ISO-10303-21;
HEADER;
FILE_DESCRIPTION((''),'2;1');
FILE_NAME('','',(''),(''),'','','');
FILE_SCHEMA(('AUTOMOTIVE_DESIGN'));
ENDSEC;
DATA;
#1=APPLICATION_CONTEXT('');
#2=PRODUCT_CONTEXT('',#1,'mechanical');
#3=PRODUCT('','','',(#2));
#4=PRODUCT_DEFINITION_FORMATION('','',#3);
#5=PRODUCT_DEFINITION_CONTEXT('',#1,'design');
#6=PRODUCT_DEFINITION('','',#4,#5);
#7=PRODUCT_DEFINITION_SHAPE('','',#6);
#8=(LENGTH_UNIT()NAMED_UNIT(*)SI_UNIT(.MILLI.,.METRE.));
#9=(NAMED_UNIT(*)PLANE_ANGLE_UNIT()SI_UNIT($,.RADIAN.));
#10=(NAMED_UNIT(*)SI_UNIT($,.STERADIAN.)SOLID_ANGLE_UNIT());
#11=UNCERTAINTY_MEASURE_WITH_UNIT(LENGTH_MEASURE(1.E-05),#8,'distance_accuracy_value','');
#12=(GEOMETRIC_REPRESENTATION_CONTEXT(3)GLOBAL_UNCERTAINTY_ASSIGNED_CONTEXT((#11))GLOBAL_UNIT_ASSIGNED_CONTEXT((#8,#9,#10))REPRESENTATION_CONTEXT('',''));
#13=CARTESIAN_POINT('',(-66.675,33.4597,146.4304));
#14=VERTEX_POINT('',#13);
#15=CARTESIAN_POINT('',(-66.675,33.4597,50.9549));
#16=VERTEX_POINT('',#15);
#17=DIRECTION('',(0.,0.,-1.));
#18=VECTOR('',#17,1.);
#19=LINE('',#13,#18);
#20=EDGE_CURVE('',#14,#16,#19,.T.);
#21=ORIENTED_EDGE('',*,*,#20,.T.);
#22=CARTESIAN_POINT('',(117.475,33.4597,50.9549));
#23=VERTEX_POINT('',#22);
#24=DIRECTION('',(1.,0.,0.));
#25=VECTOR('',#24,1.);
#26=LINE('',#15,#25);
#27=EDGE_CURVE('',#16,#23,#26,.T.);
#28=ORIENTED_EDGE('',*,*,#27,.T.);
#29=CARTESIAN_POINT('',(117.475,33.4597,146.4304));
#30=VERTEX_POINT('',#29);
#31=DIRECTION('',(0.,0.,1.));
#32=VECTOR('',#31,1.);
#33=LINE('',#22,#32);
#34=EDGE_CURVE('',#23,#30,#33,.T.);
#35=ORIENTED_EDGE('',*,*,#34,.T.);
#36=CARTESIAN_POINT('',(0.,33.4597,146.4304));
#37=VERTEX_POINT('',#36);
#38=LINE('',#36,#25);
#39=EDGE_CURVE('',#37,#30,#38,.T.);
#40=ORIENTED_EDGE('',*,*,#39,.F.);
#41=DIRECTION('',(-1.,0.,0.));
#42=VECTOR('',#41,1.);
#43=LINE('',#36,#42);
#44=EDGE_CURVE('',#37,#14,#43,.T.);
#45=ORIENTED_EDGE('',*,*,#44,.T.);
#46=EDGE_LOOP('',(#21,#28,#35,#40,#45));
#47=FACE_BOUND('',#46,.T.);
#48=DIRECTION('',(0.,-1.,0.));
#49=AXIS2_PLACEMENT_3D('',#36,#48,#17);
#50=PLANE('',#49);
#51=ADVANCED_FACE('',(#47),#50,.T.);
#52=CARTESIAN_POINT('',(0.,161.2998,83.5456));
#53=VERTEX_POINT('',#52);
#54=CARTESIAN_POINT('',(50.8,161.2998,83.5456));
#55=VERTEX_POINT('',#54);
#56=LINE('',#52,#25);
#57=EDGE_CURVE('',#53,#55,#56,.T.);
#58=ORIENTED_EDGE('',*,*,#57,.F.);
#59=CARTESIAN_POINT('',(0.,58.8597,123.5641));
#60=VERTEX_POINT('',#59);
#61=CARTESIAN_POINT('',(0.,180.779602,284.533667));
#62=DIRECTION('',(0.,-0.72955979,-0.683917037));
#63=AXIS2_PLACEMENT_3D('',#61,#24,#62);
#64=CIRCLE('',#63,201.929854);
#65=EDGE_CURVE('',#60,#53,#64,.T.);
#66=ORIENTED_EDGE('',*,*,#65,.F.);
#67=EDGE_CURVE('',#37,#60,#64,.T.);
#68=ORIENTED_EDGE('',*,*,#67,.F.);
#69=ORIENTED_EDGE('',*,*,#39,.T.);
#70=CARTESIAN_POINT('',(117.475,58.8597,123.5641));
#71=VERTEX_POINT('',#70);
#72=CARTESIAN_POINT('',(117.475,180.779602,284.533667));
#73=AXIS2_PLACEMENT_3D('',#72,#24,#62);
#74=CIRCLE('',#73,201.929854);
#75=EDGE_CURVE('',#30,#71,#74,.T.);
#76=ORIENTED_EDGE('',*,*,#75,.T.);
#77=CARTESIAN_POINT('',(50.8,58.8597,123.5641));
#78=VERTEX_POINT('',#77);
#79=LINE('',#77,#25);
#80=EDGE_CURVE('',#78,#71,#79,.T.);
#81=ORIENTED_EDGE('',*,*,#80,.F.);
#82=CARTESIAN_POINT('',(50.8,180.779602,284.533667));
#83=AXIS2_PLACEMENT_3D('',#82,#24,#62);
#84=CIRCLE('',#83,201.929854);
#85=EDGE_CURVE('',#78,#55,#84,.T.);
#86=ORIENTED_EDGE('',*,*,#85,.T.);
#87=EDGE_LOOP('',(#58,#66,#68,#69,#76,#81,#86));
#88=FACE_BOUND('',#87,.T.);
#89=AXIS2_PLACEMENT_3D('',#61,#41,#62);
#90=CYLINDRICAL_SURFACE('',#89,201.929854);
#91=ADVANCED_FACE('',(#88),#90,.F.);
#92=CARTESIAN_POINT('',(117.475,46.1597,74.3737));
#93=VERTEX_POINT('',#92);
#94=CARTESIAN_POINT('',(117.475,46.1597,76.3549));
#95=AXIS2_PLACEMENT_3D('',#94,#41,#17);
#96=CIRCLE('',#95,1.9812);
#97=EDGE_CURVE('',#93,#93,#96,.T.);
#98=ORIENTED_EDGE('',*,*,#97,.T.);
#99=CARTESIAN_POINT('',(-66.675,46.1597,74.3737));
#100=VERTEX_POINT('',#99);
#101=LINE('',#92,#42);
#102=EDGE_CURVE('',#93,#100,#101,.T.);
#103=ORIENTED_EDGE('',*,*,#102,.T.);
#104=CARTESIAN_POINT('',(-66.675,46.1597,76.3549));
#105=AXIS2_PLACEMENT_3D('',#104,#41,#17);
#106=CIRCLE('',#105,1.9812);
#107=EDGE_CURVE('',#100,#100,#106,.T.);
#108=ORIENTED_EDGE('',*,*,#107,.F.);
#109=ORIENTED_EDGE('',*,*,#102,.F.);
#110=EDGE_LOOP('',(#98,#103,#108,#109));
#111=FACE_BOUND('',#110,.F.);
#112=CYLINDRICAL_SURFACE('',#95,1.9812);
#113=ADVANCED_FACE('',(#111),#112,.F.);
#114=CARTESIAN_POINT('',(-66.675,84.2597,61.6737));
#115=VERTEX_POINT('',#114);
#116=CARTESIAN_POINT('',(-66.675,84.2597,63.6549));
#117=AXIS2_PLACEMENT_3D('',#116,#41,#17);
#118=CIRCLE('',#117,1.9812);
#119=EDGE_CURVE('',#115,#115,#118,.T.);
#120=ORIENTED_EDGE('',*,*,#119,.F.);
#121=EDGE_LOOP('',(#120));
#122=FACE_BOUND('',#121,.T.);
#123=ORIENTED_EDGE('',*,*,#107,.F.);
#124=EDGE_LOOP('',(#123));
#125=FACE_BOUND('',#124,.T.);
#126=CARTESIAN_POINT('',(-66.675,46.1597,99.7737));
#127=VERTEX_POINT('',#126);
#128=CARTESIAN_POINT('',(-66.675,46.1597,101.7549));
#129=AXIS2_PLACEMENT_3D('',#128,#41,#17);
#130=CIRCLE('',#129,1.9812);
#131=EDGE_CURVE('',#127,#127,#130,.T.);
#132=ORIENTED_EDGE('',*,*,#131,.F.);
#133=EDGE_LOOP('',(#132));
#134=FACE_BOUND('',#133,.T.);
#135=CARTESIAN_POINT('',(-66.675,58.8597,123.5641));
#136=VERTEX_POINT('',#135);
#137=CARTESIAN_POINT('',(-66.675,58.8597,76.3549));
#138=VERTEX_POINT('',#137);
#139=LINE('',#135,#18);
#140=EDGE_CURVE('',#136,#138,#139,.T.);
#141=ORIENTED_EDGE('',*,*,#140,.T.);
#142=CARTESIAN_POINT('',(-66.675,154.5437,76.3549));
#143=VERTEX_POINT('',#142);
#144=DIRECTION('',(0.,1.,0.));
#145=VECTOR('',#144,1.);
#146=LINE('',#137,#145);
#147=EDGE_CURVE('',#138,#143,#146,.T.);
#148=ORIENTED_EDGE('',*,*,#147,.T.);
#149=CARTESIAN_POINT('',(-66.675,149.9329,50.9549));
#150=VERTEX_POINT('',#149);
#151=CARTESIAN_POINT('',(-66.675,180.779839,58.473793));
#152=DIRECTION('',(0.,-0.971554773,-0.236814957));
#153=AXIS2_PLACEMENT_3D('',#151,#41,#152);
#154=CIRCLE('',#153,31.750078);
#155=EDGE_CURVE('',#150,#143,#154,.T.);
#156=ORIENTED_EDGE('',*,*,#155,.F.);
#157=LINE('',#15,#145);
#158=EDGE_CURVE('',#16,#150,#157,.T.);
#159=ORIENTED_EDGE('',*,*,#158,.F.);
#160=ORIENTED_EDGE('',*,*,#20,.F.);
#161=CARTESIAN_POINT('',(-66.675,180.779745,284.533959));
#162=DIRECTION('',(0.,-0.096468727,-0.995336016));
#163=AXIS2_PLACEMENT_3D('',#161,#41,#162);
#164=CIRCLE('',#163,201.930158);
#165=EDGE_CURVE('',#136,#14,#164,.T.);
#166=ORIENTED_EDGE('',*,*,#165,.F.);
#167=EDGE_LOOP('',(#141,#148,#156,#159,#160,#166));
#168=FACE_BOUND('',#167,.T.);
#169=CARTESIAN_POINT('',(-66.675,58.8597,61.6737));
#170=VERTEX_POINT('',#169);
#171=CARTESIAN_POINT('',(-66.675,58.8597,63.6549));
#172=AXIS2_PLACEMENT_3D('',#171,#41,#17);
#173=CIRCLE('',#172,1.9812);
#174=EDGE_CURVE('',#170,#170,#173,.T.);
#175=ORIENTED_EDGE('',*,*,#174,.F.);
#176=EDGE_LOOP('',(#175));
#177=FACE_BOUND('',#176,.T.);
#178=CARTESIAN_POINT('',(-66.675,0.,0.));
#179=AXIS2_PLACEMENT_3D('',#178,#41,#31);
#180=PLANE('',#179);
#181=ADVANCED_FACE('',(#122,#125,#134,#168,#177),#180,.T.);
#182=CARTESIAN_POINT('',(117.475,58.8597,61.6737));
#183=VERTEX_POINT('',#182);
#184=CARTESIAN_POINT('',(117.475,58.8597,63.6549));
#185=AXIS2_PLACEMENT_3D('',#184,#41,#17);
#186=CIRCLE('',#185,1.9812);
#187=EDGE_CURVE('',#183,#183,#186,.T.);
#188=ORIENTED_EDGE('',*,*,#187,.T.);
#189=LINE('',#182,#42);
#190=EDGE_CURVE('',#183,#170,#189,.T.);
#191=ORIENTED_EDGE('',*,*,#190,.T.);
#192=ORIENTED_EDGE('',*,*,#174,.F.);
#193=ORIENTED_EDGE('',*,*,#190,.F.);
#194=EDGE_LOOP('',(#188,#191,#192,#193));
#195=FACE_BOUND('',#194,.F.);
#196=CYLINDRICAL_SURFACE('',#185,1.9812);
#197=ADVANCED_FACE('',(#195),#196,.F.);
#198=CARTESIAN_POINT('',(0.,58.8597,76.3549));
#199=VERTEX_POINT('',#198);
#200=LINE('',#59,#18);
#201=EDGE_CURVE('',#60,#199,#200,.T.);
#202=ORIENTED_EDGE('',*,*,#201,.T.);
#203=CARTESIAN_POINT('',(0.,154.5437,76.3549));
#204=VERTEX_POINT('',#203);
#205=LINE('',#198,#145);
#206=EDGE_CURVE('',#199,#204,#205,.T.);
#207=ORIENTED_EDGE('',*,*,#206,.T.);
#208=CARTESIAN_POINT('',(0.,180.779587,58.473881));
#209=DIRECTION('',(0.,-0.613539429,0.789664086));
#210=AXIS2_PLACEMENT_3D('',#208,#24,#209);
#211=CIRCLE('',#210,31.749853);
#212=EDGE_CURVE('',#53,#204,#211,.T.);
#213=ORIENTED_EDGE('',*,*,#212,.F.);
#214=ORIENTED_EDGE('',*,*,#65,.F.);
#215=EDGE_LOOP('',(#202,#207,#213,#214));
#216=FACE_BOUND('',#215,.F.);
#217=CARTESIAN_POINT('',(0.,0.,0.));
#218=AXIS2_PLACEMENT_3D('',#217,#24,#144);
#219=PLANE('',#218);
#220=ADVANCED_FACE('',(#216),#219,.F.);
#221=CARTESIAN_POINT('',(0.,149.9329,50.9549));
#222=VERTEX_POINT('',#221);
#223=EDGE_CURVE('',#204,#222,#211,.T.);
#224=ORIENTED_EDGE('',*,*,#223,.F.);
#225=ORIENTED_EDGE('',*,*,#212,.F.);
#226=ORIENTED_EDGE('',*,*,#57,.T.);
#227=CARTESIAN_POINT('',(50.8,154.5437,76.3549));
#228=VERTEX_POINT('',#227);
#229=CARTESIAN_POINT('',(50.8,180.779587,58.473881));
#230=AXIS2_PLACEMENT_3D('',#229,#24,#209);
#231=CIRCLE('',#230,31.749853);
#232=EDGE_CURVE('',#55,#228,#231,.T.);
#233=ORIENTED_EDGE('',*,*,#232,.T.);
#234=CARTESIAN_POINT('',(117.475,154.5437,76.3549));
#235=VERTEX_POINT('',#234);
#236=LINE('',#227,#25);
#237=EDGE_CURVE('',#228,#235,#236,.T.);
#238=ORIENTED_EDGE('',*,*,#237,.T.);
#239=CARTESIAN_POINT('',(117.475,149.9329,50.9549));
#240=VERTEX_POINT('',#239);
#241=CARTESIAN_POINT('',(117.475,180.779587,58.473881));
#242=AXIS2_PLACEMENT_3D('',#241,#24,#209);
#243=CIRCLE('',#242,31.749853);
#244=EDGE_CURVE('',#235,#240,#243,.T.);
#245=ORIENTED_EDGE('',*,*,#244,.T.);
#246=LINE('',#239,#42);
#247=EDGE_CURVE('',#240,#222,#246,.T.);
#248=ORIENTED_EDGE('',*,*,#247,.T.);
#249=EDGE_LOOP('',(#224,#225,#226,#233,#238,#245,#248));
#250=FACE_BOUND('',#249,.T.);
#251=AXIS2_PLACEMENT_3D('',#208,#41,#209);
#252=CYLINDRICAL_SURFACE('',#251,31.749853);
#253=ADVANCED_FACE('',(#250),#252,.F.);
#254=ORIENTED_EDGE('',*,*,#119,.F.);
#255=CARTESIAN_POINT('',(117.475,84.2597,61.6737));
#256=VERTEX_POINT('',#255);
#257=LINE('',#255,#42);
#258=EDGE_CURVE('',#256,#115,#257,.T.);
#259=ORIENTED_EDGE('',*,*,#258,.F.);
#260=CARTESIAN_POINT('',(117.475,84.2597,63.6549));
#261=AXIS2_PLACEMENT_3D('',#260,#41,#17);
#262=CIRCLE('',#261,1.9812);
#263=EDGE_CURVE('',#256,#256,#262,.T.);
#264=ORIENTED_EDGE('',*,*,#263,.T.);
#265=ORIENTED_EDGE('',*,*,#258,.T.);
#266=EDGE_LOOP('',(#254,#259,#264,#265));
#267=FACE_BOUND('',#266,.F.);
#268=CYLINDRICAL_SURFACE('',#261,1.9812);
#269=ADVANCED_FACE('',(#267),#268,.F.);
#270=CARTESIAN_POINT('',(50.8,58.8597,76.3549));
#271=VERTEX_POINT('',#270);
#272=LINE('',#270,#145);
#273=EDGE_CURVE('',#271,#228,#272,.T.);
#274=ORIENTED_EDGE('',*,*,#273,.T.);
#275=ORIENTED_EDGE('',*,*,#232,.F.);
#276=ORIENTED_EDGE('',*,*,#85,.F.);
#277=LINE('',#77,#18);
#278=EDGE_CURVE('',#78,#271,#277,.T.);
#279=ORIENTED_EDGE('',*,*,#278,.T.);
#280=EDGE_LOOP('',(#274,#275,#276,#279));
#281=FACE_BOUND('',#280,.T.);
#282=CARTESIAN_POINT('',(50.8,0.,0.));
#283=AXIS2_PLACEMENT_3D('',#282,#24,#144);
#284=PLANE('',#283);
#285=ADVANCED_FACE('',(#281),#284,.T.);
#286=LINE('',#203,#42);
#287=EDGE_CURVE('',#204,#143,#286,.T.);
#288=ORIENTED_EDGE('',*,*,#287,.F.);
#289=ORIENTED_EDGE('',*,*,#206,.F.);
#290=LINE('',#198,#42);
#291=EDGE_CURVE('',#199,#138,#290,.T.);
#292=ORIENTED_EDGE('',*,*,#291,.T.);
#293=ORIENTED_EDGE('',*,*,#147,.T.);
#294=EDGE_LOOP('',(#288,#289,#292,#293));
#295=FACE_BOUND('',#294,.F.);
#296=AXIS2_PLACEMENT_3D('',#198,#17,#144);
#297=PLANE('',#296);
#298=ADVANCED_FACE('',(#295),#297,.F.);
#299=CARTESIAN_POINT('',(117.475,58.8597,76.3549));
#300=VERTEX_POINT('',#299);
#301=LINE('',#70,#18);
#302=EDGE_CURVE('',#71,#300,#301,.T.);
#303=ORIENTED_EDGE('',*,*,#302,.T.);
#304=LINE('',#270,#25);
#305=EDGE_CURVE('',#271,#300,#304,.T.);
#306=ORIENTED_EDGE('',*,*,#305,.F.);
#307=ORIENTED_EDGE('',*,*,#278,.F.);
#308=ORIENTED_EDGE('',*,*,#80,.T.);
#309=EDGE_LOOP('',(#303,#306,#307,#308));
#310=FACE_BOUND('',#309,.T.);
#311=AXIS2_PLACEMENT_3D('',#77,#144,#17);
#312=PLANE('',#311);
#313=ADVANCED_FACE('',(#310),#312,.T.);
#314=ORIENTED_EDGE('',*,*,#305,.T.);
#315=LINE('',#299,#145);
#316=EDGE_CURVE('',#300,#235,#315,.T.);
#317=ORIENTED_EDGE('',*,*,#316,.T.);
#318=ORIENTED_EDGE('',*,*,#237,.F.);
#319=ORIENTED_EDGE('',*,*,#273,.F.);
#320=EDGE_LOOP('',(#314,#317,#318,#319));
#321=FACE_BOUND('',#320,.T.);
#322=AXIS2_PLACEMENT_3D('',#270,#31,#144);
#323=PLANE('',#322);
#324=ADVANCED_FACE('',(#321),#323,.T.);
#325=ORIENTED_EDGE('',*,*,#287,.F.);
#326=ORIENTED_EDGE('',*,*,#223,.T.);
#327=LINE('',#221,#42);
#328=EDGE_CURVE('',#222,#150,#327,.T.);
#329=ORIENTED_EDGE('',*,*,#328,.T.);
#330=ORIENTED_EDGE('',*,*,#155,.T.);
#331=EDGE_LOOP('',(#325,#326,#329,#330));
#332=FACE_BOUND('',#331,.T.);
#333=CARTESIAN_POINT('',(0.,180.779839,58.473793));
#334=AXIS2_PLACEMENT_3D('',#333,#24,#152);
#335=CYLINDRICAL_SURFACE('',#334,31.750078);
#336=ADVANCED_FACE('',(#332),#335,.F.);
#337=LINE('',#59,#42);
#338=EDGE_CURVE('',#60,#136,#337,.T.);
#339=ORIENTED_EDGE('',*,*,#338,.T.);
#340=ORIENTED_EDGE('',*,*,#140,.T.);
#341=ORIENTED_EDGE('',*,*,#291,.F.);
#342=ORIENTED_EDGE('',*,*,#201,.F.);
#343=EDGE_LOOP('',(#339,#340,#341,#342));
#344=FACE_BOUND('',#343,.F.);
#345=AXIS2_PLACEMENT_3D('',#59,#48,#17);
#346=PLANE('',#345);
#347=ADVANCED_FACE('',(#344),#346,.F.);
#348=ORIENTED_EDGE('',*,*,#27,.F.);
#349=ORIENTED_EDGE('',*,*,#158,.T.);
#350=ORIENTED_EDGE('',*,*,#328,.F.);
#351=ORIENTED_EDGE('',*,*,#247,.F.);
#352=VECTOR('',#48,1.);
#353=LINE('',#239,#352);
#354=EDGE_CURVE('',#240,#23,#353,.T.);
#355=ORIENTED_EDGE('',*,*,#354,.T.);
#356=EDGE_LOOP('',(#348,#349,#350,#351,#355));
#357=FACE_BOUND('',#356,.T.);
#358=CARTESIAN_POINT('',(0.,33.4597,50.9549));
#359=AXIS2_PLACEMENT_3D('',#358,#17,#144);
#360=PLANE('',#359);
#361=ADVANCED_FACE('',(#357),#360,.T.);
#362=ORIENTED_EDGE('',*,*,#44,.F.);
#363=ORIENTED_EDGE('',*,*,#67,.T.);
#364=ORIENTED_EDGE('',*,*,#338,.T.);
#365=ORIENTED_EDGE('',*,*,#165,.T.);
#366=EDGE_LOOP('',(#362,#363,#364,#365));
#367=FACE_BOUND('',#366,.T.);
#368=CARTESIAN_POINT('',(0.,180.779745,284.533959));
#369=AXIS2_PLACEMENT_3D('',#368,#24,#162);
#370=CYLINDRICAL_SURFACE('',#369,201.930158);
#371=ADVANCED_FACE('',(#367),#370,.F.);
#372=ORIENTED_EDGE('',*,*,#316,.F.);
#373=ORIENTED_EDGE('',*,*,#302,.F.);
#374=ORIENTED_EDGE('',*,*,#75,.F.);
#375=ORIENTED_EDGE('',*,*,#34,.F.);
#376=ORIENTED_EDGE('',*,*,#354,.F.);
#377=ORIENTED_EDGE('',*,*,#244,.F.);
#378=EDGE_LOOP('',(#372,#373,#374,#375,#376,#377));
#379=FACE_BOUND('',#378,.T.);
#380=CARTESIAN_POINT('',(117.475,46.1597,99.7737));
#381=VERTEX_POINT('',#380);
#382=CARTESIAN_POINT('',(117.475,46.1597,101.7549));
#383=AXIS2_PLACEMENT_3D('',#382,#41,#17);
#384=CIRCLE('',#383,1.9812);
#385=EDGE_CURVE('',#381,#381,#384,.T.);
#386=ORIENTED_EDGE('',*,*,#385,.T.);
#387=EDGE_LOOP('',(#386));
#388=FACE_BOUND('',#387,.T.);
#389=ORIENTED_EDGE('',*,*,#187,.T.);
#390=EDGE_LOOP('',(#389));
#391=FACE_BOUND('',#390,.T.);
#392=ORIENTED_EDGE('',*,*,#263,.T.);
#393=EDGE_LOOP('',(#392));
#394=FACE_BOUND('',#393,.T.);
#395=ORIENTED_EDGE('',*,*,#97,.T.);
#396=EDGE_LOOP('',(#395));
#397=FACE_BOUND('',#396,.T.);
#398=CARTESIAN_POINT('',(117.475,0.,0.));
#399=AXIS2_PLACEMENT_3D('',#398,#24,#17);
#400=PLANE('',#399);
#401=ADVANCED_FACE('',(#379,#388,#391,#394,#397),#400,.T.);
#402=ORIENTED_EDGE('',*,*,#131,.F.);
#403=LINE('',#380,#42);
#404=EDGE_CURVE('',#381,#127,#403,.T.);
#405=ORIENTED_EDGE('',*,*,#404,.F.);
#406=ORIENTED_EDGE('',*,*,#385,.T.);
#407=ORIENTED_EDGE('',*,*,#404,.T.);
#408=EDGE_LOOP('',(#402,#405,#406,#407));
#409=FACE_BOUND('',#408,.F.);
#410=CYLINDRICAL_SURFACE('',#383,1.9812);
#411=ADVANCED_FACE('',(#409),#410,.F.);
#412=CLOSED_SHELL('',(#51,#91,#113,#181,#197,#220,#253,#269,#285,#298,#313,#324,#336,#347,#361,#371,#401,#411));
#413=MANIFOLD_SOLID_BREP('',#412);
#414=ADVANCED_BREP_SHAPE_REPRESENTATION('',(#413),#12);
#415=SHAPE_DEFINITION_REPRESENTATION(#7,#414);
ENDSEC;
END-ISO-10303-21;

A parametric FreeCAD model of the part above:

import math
import FreeCAD as App
import Part
import Sketcher

V = App.Vector
Q = App.Units.Quantity

doc = App.newDocument("Part")
body = doc.addObject("PartDesign::Body", "Body")

sketch1 = body.newObject("Sketcher::SketchObject", "Sketch")
sketch1.AttachmentSupport = (doc.getObject("YZ_Plane"), [""])
sketch1.MapMode = "FlatFace"
sketch1.addGeometry([
    Part.ArcOfCircle(Part.Circle(V(181, 285, 0), V(0, 0, 1), 202), math.radians(-137), math.radians(-96)),
    Part.LineSegment(V(33, 146, 0), V(33, 51, 0)),
    Part.LineSegment(V(33, 51, 0), V(150, 51, 0)),
    Part.ArcOfCircle(Part.Circle(V(181, 58, 0), V(0, 0, 1), 32), math.radians(128), math.radians(194)),
], False)
sketch1.addConstraint([
    Sketcher.Constraint("Coincident", 0, 1, 1, 1),
    Sketcher.Constraint("Coincident", 1, 2, 2, 1),
    Sketcher.Constraint("Coincident", 2, 2, 3, 2),
    Sketcher.Constraint("Coincident", 3, 1, 0, 2),
    Sketcher.Constraint("Vertical", 1),
    Sketcher.Constraint("Horizontal", 2),
    Sketcher.Constraint("Vertical", 0, 3, 3, 3),
    Sketcher.Constraint("DistanceY", 3, 3, 0, 3, Q("8.9 in")),
    Sketcher.Constraint("Radius", 0, Q("7.95 in")),
    Sketcher.Constraint("Radius", 3, Q("1.25 in")),
    Sketcher.Constraint("DistanceX", 0, 1, 3, 3, Q("5.8 in")),
    Sketcher.Constraint("DistanceX", 2, 1, 2, 2, Q("116.4732 mm")),
    Sketcher.Constraint("DistanceX", -1, 1, 0, 3, Q("7.1173 in")),
    Sketcher.Constraint("DistanceY", -1, 1, 1, 2, Q("2.0061 in")),
])
pad1 = body.newObject("PartDesign::Pad", "Pad")
pad1.Profile = sketch1
pad1.Length = Q("2 in")

sketch2 = body.newObject("Sketcher::SketchObject", "Sketch001")
sketch2.AttachmentSupport = (doc.getObject("YZ_Plane"), [""])
sketch2.MapMode = "FlatFace"
sketch2.AttachmentOffset = App.Placement(V(0, 0, 2 * 25.4), App.Rotation())
sketch2.addGeometry([
    Part.ArcOfCircle(Part.Circle(V(181, 285, 0), V(0, 0, 1), 202), math.radians(-136.85), math.radians(-127.14)),
    Part.LineSegment(V(33, 146, 0), V(33, 51, 0)),
    Part.LineSegment(V(33, 51, 0), V(150, 51, 0)),
    Part.ArcOfCircle(Part.Circle(V(181, 58, 0), V(0, 0, 1), 32), math.radians(146), math.radians(194)),
    Part.LineSegment(V(155, 76, 0), V(59, 76, 0)),
    Part.LineSegment(V(59, 76, 0), V(59, 124, 0)),
], False)
sketch2.addConstraint([
    Sketcher.Constraint("Coincident", 0, 1, 1, 1),
    Sketcher.Constraint("Coincident", 1, 2, 2, 1),
    Sketcher.Constraint("Coincident", 2, 2, 3, 2),
    Sketcher.Constraint("Coincident", 3, 1, 4, 1),
    Sketcher.Constraint("Coincident", 4, 2, 5, 1),
    Sketcher.Constraint("Coincident", 5, 2, 0, 2),
    Sketcher.Constraint("Vertical", 1),
    Sketcher.Constraint("Horizontal", 2),
    Sketcher.Constraint("Horizontal", 4),
    Sketcher.Constraint("Vertical", 5),
    Sketcher.Constraint("Vertical", 0, 3, 3, 3),
    Sketcher.Constraint("DistanceY", 2, 2, 3, 1, Q("1 in")),
    Sketcher.Constraint("DistanceX", 1, 2, 4, 2, Q("1 in")),
    Sketcher.Constraint("Radius", 0, Q("7.95 in")),
    Sketcher.Constraint("Radius", 3, Q("1.25 in")),
    Sketcher.Constraint("DistanceY", 3, 3, 0, 3, Q("8.9 in")),
    Sketcher.Constraint("DistanceX", 0, 1, 3, 3, Q("5.8 in")),
    Sketcher.Constraint("DistanceX", 2, 1, 2, 2, Q("116.4732 mm")),
    Sketcher.Constraint("DistanceX", -1, 1, 0, 3, Q("7.1173 in")),
    Sketcher.Constraint("DistanceY", -1, 1, 1, 2, Q("2.0061 in")),
])
pad2 = body.newObject("PartDesign::Pad", "Pad001")
pad2.Profile = sketch2
pad2.Length = Q("2.625 in")

sketch3 = body.newObject("Sketcher::SketchObject", "Sketch002")
sketch3.AttachmentSupport = (doc.getObject("YZ_Plane"), [""])
sketch3.MapMode = "FlatFace"
sketch3.addGeometry([
    Part.LineSegment(V(59, 124, 0), V(59, 76, 0)),
    Part.LineSegment(V(59, 76, 0), V(155, 76, 0)),
    Part.ArcOfCircle(Part.Circle(V(181, 58, 0), V(0, 0, 1), 32), math.radians(146), math.radians(194)),
    Part.LineSegment(V(150, 51, 0), V(33, 51, 0)),
    Part.LineSegment(V(33, 51, 0), V(33, 146, 0)),
    Part.ArcOfCircle(Part.Circle(V(181, 285, 0), V(0, 0, 1), 202), math.radians(-136.85), math.radians(-127.14)),
], False)
sketch3.addConstraint([
    Sketcher.Constraint("Coincident", 0, 2, 1, 1),
    Sketcher.Constraint("Coincident", 1, 2, 2, 1),
    Sketcher.Constraint("Coincident", 2, 2, 3, 1),
    Sketcher.Constraint("Coincident", 3, 2, 4, 1),
    Sketcher.Constraint("Coincident", 4, 2, 5, 1),
    Sketcher.Constraint("Coincident", 5, 2, 0, 1),
    Sketcher.Constraint("Vertical", 0),
    Sketcher.Constraint("Horizontal", 1),
    Sketcher.Constraint("Horizontal", 3),
    Sketcher.Constraint("Vertical", 4),
    Sketcher.Constraint("Vertical", 2, 3, 5, 3),
    Sketcher.Constraint("Radius", 2, Q("1.25 in")),
    Sketcher.Constraint("Radius", 5, Q("7.95 in")),
    Sketcher.Constraint("DistanceY", 2, 2, 1, 2, Q("1 in")),
    Sketcher.Constraint("DistanceX", 3, 2, 0, 2, Q("1 in")),
    Sketcher.Constraint("DistanceY", 2, 3, 5, 3, Q("8.9 in")),
    Sketcher.Constraint("DistanceX", 0, 2, 2, 3, Q("4.8 in")),
    Sketcher.Constraint("DistanceX", 1, 1, 1, 2, Q("95.684 mm")),
    Sketcher.Constraint("DistanceX", -1, 1, 2, 3, Q("7.1173 in")),
    Sketcher.Constraint("DistanceY", -1, 1, 0, 2, Q("3.0061 in")),
])
pad3 = body.newObject("PartDesign::Pad", "Pad002")
pad3.Profile = sketch3
pad3.Length = Q("2.625 in")
pad3.Reversed = True

sketch4 = body.newObject("Sketcher::SketchObject", "Sketch003")
sketch4.AttachmentSupport = (doc.getObject("YZ_Plane"), [""])
sketch4.MapMode = "FlatFace"
sketch4.AttachmentOffset = App.Placement(V(0, 0, 4.625 * 25.4), App.Rotation())
sketch4.addGeometry([
    Part.Circle(V(46.2, 76.4, 0), V(0, 0, 1), 2),
    Part.Circle(V(46.2, 101.8, 0), V(0, 0, 1), 2),
    Part.Circle(V(58.9, 63.7, 0), V(0, 0, 1), 2),
    Part.Circle(V(84.3, 63.7, 0), V(0, 0, 1), 2),
], False)
sketch4.addConstraint([
    Sketcher.Constraint("Equal", 0, 1),
    Sketcher.Constraint("Equal", 1, 2),
    Sketcher.Constraint("Equal", 2, 3),
    Sketcher.Constraint("Horizontal", 2, 3, 3, 3),
    Sketcher.Constraint("Vertical", 0, 3, 1, 3),
    Sketcher.Constraint("Diameter", 0, Q("0.156 in")),
    Sketcher.Constraint("DistanceY", 0, 3, 1, 3, Q("1 in")),
    Sketcher.Constraint("DistanceX", 2, 3, 3, 3, Q("1 in")),
    Sketcher.Constraint("DistanceX", 0, 3, 2, 3, Q("0.5 in")),
    Sketcher.Constraint("DistanceY", 2, 3, 0, 3, Q("0.5 in")),
    Sketcher.Constraint("DistanceX", -1, 1, 0, 3, Q("1.8173 in")),
    Sketcher.Constraint("DistanceY", -1, 1, 0, 3, Q("3.0061 in")),
])
doc.recompute()
hole = body.newObject("PartDesign::Hole", "Hole")
hole.Profile = sketch4
hole.ThreadType = "None"
hole.Diameter = Q("0.156 in")
hole.DepthType = "ThroughAll"

doc.recompute()
